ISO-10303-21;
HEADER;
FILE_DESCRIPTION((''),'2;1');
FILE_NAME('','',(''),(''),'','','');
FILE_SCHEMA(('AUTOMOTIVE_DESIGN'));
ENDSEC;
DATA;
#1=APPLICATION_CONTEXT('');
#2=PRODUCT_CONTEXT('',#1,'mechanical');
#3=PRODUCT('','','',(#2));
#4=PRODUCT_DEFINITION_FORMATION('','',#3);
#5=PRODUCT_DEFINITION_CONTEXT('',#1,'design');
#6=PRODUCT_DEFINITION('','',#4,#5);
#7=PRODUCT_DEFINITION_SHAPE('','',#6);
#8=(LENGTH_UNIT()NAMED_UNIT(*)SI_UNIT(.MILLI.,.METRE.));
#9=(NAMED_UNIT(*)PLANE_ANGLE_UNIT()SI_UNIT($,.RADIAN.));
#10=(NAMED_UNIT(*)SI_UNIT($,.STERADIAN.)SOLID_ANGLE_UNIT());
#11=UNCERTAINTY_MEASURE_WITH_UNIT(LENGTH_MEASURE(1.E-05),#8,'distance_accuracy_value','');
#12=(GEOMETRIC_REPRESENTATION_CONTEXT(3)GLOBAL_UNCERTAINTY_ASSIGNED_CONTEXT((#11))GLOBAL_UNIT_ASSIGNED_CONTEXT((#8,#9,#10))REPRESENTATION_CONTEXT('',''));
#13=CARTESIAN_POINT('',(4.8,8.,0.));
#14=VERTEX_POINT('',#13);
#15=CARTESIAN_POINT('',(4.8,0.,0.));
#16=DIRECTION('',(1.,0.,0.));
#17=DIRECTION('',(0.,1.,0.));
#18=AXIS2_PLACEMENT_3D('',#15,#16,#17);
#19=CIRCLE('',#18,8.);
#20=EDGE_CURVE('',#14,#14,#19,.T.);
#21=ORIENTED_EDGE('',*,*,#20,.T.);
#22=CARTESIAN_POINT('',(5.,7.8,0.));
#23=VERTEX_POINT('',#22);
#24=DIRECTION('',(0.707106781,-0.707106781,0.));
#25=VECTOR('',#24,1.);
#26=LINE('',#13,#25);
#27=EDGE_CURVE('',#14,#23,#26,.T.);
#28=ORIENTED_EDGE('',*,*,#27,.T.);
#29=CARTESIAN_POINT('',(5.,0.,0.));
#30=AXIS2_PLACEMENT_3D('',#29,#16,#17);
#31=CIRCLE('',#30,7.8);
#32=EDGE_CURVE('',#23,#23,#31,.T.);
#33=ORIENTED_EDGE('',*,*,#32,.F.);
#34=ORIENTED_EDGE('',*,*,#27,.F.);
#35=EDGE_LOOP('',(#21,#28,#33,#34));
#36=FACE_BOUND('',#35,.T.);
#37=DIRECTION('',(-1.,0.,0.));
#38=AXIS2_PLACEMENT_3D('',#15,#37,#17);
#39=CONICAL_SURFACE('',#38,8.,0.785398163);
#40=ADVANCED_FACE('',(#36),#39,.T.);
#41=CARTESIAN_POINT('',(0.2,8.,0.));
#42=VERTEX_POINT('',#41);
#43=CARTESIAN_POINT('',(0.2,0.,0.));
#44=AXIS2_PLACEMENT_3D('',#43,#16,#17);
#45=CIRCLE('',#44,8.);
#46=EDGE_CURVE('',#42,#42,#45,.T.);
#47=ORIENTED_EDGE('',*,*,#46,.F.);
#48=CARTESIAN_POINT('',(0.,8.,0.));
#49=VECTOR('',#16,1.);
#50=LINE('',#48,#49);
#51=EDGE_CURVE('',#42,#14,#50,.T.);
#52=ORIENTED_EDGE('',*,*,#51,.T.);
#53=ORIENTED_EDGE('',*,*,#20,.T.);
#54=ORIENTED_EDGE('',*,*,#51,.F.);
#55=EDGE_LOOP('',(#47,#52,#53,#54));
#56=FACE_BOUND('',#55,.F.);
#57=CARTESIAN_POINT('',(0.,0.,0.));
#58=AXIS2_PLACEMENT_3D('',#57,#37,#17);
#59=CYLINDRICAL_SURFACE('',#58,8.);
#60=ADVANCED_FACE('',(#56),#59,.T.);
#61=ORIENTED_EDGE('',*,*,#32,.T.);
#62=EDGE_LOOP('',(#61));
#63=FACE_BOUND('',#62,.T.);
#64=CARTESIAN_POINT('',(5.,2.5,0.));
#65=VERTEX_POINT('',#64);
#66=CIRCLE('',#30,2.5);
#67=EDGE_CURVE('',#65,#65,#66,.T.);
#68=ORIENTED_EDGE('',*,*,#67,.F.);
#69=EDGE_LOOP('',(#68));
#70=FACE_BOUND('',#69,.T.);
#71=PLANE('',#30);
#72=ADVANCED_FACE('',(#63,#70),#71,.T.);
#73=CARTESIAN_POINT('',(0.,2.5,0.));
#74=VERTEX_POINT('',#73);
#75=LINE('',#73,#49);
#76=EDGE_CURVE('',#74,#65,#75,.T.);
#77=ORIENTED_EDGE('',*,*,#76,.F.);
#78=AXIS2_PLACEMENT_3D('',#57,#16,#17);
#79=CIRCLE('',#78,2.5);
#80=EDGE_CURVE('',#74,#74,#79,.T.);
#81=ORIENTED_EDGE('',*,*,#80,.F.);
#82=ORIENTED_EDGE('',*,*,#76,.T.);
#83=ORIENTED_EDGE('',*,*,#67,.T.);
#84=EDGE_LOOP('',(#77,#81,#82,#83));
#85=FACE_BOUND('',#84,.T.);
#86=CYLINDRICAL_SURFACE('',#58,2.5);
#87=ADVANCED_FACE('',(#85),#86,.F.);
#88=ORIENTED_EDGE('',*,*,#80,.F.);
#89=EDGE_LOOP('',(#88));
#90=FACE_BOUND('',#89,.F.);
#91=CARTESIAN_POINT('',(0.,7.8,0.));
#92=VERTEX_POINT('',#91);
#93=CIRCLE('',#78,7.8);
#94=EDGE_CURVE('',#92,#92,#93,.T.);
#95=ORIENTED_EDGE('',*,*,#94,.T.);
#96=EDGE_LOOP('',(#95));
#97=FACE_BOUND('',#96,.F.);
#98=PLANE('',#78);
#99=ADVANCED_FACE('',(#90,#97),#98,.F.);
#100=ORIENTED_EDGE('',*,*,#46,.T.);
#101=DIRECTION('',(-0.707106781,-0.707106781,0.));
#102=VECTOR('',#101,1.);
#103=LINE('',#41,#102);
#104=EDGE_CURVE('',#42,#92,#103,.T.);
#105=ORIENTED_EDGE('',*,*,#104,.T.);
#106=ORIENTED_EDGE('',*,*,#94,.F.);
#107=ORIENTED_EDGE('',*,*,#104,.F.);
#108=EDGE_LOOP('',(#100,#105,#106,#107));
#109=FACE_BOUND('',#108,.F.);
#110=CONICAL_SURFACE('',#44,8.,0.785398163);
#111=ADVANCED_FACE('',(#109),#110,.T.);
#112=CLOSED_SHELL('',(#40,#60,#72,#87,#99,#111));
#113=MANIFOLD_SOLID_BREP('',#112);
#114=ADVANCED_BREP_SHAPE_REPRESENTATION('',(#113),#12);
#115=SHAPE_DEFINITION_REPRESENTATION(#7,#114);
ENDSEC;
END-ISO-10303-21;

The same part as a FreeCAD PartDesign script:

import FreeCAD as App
import Part
import Sketcher
Q = App.Units.Quantity


def edges_at(feature, points):
    """Names of the edges that pass closest to the given points."""
    edges = feature.Shape.Edges
    near = lambda p: min(range(len(edges)), key=lambda i: edges[i].distToShape(Part.Vertex(*p))[0])
    return sorted({f"Edge{near(p) + 1}" for p in points})

doc = App.newDocument("Part")
body = doc.addObject("PartDesign::Body", "Body")

# Sketch on YZ plane
sketch1 = body.newObject("Sketcher::SketchObject", "Sketch")
sketch1.AttachmentSupport = (doc.getObject("YZ_Plane"), [""])
sketch1.MapMode = "FlatFace"
sketch1.addGeometry([
    Part.Circle(App.Vector(0, 0, 0), App.Vector(0, 0, 1), 8),
    Part.Circle(App.Vector(0, 0, 0), App.Vector(0, 0, 1), 2.5),
], False)
sketch1.addConstraint([
    Sketcher.Constraint("Coincident", 0, 3, -1, 1),
    Sketcher.Constraint("Coincident", 1, 3, -1, 1),
    Sketcher.Constraint("Diameter", 0, Q("16 mm")),
    Sketcher.Constraint("Diameter", 1, Q("5 mm")),
])
pad1 = body.newObject("PartDesign::Pad", "Pad")
pad1.Profile = sketch1
pad1.Length = 5
doc.recompute()

chamfer = body.newObject("PartDesign::Chamfer", "Chamfer")
chamfer.Base = (pad1, edges_at(pad1, [(5, -8, 0), (0, -8, 0)]))
chamfer.Size = 0.2

doc.recompute()
